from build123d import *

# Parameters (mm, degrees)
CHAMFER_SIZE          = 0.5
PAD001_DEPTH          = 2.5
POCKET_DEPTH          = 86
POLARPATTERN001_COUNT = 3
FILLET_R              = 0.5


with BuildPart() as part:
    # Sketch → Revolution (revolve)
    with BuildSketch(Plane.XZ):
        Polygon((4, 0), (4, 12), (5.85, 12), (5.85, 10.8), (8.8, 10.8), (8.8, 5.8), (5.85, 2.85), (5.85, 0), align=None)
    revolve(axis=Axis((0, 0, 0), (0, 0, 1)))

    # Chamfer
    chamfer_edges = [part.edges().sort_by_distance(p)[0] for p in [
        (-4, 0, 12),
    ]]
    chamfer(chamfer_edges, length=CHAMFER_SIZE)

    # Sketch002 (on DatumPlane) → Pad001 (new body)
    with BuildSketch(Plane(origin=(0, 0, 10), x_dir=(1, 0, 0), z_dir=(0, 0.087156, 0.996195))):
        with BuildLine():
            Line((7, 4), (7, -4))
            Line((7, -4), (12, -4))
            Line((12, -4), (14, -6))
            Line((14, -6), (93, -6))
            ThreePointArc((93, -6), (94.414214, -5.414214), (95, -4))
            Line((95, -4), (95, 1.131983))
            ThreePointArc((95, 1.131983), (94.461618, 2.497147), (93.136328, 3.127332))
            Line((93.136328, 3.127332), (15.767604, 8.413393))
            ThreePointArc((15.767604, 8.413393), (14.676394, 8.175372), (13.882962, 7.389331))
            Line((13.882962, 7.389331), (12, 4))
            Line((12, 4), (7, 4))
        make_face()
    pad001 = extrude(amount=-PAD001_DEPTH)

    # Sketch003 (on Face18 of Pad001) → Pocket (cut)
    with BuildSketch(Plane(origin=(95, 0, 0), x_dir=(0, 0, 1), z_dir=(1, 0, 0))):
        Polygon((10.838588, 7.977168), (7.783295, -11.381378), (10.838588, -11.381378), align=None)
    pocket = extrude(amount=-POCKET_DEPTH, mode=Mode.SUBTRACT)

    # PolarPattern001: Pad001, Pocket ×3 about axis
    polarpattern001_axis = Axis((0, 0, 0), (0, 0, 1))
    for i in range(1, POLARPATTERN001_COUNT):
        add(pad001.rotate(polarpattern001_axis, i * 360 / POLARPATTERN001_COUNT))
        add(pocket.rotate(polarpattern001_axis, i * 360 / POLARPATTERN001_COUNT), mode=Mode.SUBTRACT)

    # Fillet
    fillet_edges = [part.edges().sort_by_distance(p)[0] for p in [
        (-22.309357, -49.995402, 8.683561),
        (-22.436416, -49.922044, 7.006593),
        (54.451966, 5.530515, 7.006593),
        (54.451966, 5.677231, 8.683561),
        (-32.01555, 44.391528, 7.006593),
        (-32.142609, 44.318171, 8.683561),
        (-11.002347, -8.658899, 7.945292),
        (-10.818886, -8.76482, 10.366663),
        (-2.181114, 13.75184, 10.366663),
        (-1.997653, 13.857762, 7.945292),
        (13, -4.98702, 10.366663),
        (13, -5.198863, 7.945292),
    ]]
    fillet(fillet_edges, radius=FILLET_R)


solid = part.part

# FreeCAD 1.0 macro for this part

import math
import FreeCAD as App
import Part
import Sketcher
Q = App.Units.Quantity


def edges_at(feature, points):
    """Names of the edges that pass closest to the given points."""
    edges = feature.Shape.Edges
    near = lambda p: min(range(len(edges)), key=lambda i: edges[i].distToShape(Part.Vertex(*p))[0])
    return sorted({f"Edge{near(p) + 1}" for p in points})


def add_polygon(sketch, points):
    """Adds a closed chain of lines whose ends are joined by coincident constraints."""
    first, n = sketch.GeometryCount, len(points)
    for a, b in zip(points, points[1:] + points[:1]):
        sketch.addGeometry(Part.LineSegment(App.Vector(*a, 0), App.Vector(*b, 0)), False)
    for i in range(n):
        sketch.addConstraint(Sketcher.Constraint("Coincident", first + i, 2, first + (i + 1) % n, 1))

doc = App.newDocument("Part")
params = doc.addObject("Spreadsheet::Sheet", "Params")
for row, (alias, value) in enumerate([
    ("sketch1_height", "12 mm"),
    ("sketch1_height2", "5 mm"),
    ("sketch1_height3", "1.2 mm"),
    ("sketch1_width", "1.85 mm"),
    ("sketch1_width2", "2.95 mm"),
    ("revolution_angle", "360 deg"),
    ("chamfer_size", "0.5 mm"),
    ("sketch2_radius", "1.999999 mm"),
    ("sketch2_width", "5 mm"),
    ("sketch2_width2", "79 mm"),
    ("sketch2_height", "8 mm"),
    ("pad1_length", "2.5 mm"),
    ("pocket1_length", "86 mm"),
    ("fillet_radius", "0.5 mm"),
], start=1):
    params.set(f"A{row}", alias)
    params.set(f"B{row}", "=" + value)
    params.setAlias(f"B{row}", alias)

body = doc.addObject("PartDesign::Body", "Body")

sketch1 = doc.addObject("Sketcher::SketchObject", "Sketch")
body.addObject(sketch1)
sketch1.AttachmentSupport = (doc.XZ_Plane, [""])
sketch1.MapMode = "FlatFace"
add_polygon(sketch1, [(4, 12), (4, 0), (5.8, 0), (5.8, 2.9), (8.8, 5.8), (8.8, 10.8), (5.8, 10.8), (5.8, 12)])
sketch1.addConstraint([
    Sketcher.Constraint("Vertical", 0),
    Sketcher.Constraint("Horizontal", 1),
    Sketcher.Constraint("Vertical", 2),
    Sketcher.Constraint("Vertical", 4),
    Sketcher.Constraint("Horizontal", 5),
    Sketcher.Constraint("Vertical", 6),
    Sketcher.Constraint("Horizontal", 7),
    Sketcher.Constraint("PointOnObject", 0, 2, -1),
    Sketcher.Constraint("Vertical", 2, 2, 5, 2),
    Sketcher.Constraint("DistanceY", 0, 2, 0, 1, 12.0),
    Sketcher.Constraint("DistanceY", 4, 1, 4, 2, 5.0),
    Sketcher.Constraint("Angle", 3, Q("45 deg")),
    Sketcher.Constraint("DistanceY", 6, 1, 6, 2, 1.2),
    Sketcher.Constraint("DistanceX", -1, 1, 0, 2, 4.0),
    Sketcher.Constraint("DistanceX", 1, 1, 1, 2, 1.85),
    Sketcher.Constraint("DistanceX", 5, 2, 5, 1, 2.95),
])
sketch1.setExpression("Constraints[17]", "Params.sketch1_height")
sketch1.setExpression("Constraints[18]", "Params.sketch1_height2")
sketch1.setExpression("Constraints[20]", "Params.sketch1_height3")
sketch1.setExpression("Constraints[22]", "Params.sketch1_width")
sketch1.setExpression("Constraints[23]", "Params.sketch1_width2")
revolution = doc.addObject("PartDesign::Revolution", "Revolution")
body.addObject(revolution)
revolution.Profile = sketch1
revolution.ReferenceAxis = (sketch1, ["V_Axis"])
revolution.setExpression("Angle", "Params.revolution_angle")
doc.recompute()

chamfer = doc.addObject("PartDesign::Chamfer", "Chamfer")
body.addObject(chamfer)
chamfer.Base = (revolution, edges_at(revolution, [(-4, 0, 12)]))
chamfer.setExpression("Size", "Params.chamfer_size")

sketch2 = doc.addObject("Sketcher::SketchObject", "Sketch001")
body.addObject(sketch2)
sketch2.Placement = App.Placement(App.Vector(0, 0, 10), App.Rotation(App.Vector(1, 0, 0), App.Vector(0, 0.996194678, -0.087155972), App.Vector(0, 0.087155972, 0.996194678), "ZXY"))
sketch2.addGeometry([
    Part.LineSegment(App.Vector(7, 4, 0), App.Vector(7, -4, 0)),
    Part.LineSegment(App.Vector(7, -4, 0), App.Vector(12, -4, 0)),
    Part.LineSegment(App.Vector(12, -4, 0), App.Vector(14, -6, 0)),
    Part.LineSegment(App.Vector(14, -6, 0), App.Vector(93, -6, 0)),
    Part.ArcOfCircle(Part.Circle(App.Vector(93, -4, 0), App.Vector(0, 0, 1), 2), math.radians(-90), math.radians(0)),
    Part.LineSegment(App.Vector(95, -4, 0), App.Vector(95, 1.1, 0)),
    Part.ArcOfCircle(Part.Circle(App.Vector(93, 1.1, 0), App.Vector(0, 0, 1), 2), math.radians(0), math.radians(86)),
    Part.LineSegment(App.Vector(93.1, 3.1, 0), App.Vector(15.8, 8.4, 0)),
    Part.ArcOfCircle(Part.Circle(App.Vector(15.6, 6.4, 0), App.Vector(0, 0, 1), 2), math.radians(86), math.radians(151)),
    Part.LineSegment(App.Vector(13.9, 7.4, 0), App.Vector(12, 4, 0)),
    Part.LineSegment(App.Vector(12, 4, 0), App.Vector(7, 4, 0)),
], False)
sketch2.addConstraint([
    Sketcher.Constraint("Coincident", 0, 2, 1, 1),
    Sketcher.Constraint("Coincident", 1, 2, 2, 1),
    Sketcher.Constraint("Coincident", 2, 2, 3, 1),
    Sketcher.Constraint("Tangent", 3, 2, 4, 1),
    Sketcher.Constraint("Tangent", 4, 2, 5, 1),
    Sketcher.Constraint("Tangent", 5, 2, 6, 1),
    Sketcher.Constraint("Tangent", 6, 2, 7, 1),
    Sketcher.Constraint("Tangent", 7, 2, 8, 1),
    Sketcher.Constraint("Tangent", 8, 2, 9, 1),
    Sketcher.Constraint("Coincident", 9, 2, 10, 1),
    Sketcher.Constraint("Coincident", 10, 2, 0, 1),
    Sketcher.Constraint("Vertical", 0),
    Sketcher.Constraint("Horizontal", 1),
    Sketcher.Constraint("Horizontal", 3),
    Sketcher.Constraint("Vertical", 5),
    Sketcher.Constraint("Horizontal", 10),
    Sketcher.Constraint("Equal", 6, 8),
    Sketcher.Constraint("Symmetric", 1, 2, 9, 2, -1),
    Sketcher.Constraint("Horizontal", 4, 3, 0, 2),
    Sketcher.Constraint("Vertical", 6, 3, 3, 2),
    Sketcher.Constraint("Radius", 4, 1.999999),
    Sketcher.Constraint("DistanceX", 1, 1, 1, 2, 5.0),
    Sketcher.Constraint("DistanceX", 3, 1, 3, 2, 79.0),
    Sketcher.Constraint("DistanceY", 0, 2, 0, 1, 8.0),
    Sketcher.Constraint("Angle", 2, Q("-45 deg")),
    Sketcher.Constraint("DistanceX", -1, 1, 4, 3, 93.000001),
    Sketcher.Constraint("DistanceY", 5, 1, 5, 2, 5.131983),
    Sketcher.Constraint("DistanceX", -1, 1, 8, 2, 13.882962),
    Sketcher.Constraint("DistanceY", -1, 1, 8, 2, 7.389331),
])
sketch2.setExpression("Constraints[20]", "Params.sketch2_radius")
sketch2.setExpression("Constraints[21]", "Params.sketch2_width")
sketch2.setExpression("Constraints[22]", "Params.sketch2_width2")
sketch2.setExpression("Constraints[23]", "Params.sketch2_height")
pad1 = doc.addObject("PartDesign::Pad", "Pad")
body.addObject(pad1)
pad1.Profile = sketch2
pad1.setExpression("Length", "Params.pad1_length")
pad1.Reversed = True

sketch3 = doc.addObject("Sketcher::SketchObject", "Sketch002")
body.addObject(sketch3)
sketch3.AttachmentSupport = (doc.YZ_Plane, [""])
sketch3.MapMode = "FlatFace"
sketch3.AttachmentOffset = App.Placement(App.Vector(0, 0, 95), App.Rotation())
add_polygon(sketch3, [(-8, 10.8), (11.4, 7.8), (11.4, 10.8)])
sketch3.addConstraint([
    Sketcher.Constraint("Vertical", 1),
    Sketcher.Constraint("Horizontal", 2),
    Sketcher.Constraint("DistanceX", 2, 2, 2, 1, 19.358546),
    Sketcher.Constraint("DistanceY", 1, 1, 1, 2, 3.055293),
    Sketcher.Constraint("DistanceX", -1, 1, 0, 2, 11.381378),
    Sketcher.Constraint("DistanceY", -1, 1, 0, 2, 7.783295),
])
pocket1 = doc.addObject("PartDesign::Pocket", "Pocket")
body.addObject(pocket1)
pocket1.Profile = sketch3
pocket1.setExpression("Length", "Params.pocket1_length")
doc.recompute()

polarpattern = doc.addObject("PartDesign::PolarPattern", "PolarPattern")
body.addObject(polarpattern)
polarpattern.Originals = [pad1, pocket1]
polarpattern.Axis = (doc.Z_Axis, [""])
polarpattern.Angle = 360
polarpattern.Occurrences = 3
body.Tip = polarpattern
doc.recompute()

fillet = doc.addObject("PartDesign::Fillet", "Fillet")
body.addObject(fillet)
fillet.Base = (polarpattern, edges_at(polarpattern, [
    (-22.309, -49.995, 8.684),
    (-22.436, -49.922, 7.007),
    (54.452, 5.531, 7.007),
    (54.452, 5.677, 8.684),
    (-32.016, 44.392, 7.007),
    (-32.143, 44.318, 8.684),
    (-11.002, -8.659, 7.945),
    (-10.819, -8.765, 10.367),
    (-2.181, 13.752, 10.367),
    (-1.998, 13.858, 7.945),
    (13, -4.987, 10.367),
    (13, -5.199, 7.945),
]))
fillet.setExpression("Radius", "Params.fillet_radius")

doc.recompute()
